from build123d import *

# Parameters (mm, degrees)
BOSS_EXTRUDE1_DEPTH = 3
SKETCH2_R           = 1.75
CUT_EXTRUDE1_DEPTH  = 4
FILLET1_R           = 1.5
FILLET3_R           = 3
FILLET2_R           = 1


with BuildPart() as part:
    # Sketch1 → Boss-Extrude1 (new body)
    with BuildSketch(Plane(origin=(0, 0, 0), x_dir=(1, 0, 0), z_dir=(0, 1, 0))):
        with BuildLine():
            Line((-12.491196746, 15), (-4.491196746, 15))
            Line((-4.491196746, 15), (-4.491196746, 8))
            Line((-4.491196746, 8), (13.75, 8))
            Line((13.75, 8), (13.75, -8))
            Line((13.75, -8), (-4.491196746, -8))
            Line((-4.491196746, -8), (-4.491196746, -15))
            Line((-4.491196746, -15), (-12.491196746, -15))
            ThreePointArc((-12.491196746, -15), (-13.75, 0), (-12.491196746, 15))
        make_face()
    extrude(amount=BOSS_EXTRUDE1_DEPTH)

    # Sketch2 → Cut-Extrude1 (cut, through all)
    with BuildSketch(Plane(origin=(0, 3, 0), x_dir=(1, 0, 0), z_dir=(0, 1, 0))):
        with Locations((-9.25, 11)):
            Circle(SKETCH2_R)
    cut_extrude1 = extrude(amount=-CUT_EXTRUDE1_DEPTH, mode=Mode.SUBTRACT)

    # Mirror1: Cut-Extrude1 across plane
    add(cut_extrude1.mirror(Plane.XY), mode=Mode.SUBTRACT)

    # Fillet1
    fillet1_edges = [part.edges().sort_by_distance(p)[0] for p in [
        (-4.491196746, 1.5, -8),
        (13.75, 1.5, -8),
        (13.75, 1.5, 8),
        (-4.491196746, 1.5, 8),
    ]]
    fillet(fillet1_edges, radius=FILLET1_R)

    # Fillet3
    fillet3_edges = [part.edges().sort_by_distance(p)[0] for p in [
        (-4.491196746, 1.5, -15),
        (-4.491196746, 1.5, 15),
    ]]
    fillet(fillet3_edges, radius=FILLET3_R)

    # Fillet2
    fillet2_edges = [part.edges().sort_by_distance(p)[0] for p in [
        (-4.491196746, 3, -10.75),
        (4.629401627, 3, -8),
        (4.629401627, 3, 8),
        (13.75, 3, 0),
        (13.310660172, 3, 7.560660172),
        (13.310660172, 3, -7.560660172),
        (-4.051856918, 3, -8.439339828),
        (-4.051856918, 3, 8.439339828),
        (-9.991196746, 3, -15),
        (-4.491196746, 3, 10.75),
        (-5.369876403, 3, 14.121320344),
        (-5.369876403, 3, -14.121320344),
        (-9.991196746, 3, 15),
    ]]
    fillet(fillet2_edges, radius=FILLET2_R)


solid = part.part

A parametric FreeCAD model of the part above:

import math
import FreeCAD as App
import Part
import Sketcher


def edges_at(feature, points):
    """Names of the edges that pass closest to the given points."""
    edges = feature.Shape.Edges
    near = lambda p: min(range(len(edges)), key=lambda i: edges[i].distToShape(Part.Vertex(*p))[0])
    return sorted({f"Edge{near(p) + 1}" for p in points})

doc = App.newDocument("Part")
body = doc.addObject("PartDesign::Body", "Body")

# Sketch on XZ plane
sketch1 = body.newObject("Sketcher::SketchObject", "Sketch")
sketch1.AttachmentSupport = (doc.getObject("XZ_Plane"), [""])
sketch1.MapMode = "FlatFace"
sketch1.addGeometry(Part.LineSegment(App.Vector(-4, -15, 0), App.Vector(-12, -15, 0)), False)
sketch1.addGeometry(Part.ArcOfCircle(Part.Circle(App.Vector(76, 0, 0), App.Vector(0, 0, 1), 90), math.radians(170.41), math.radians(189.59)), False)
sketch1.addGeometry(Part.LineSegment(App.Vector(-12, 15, 0), App.Vector(-4, 15, 0)), False)
sketch1.addGeometry(Part.LineSegment(App.Vector(-4, 15, 0), App.Vector(-4, 8, 0)), False)
sketch1.addGeometry(Part.LineSegment(App.Vector(-4, 8, 0), App.Vector(14, 8, 0)), False)
sketch1.addGeometry(Part.LineSegment(App.Vector(14, 8, 0), App.Vector(14, -8, 0)), False)
sketch1.addGeometry(Part.LineSegment(App.Vector(14, -8, 0), App.Vector(-4, -8, 0)), False)
sketch1.addGeometry(Part.LineSegment(App.Vector(-4, -8, 0), App.Vector(-4, -15, 0)), False)
sketch1.addConstraint(Sketcher.Constraint("Coincident", 0, 2, 1, 2))
sketch1.addConstraint(Sketcher.Constraint("Coincident", 1, 1, 2, 1))
sketch1.addConstraint(Sketcher.Constraint("Coincident", 2, 2, 3, 1))
sketch1.addConstraint(Sketcher.Constraint("Coincident", 3, 2, 4, 1))
sketch1.addConstraint(Sketcher.Constraint("Coincident", 4, 2, 5, 1))
sketch1.addConstraint(Sketcher.Constraint("Coincident", 5, 2, 6, 1))
sketch1.addConstraint(Sketcher.Constraint("Coincident", 6, 2, 7, 1))
sketch1.addConstraint(Sketcher.Constraint("Coincident", 7, 2, 0, 1))
sketch1.addConstraint(Sketcher.Constraint("Horizontal", 0))
sketch1.addConstraint(Sketcher.Constraint("Horizontal", 2))
sketch1.addConstraint(Sketcher.Constraint("Vertical", 3))
sketch1.addConstraint(Sketcher.Constraint("Horizontal", 4))
sketch1.addConstraint(Sketcher.Constraint("Vertical", 5))
sketch1.addConstraint(Sketcher.Constraint("Horizontal", 6))
sketch1.addConstraint(Sketcher.Constraint("Vertical", 7))
sketch1.addConstraint(Sketcher.Constraint("Symmetric", 0, 2, 1, 1, -1))
sketch1.addConstraint(Sketcher.Constraint("Symmetric", 3, 2, 6, 2, -1))
sketch1.addConstraint(Sketcher.Constraint("Radius", 1, 90.0))
sketch1.addConstraint(Sketcher.Constraint("DistanceX", 0, 2, 0, 1, 8.0))
sketch1.addConstraint(Sketcher.Constraint("DistanceY", 3, 2, 3, 1, 7.0))
sketch1.addConstraint(Sketcher.Constraint("DistanceY", 5, 2, 5, 1, 16.0))
sketch1.addConstraint(Sketcher.Constraint("DistanceX", 4, 2, 1, 3, 62.5))
sketch1.addConstraint(Sketcher.Constraint("DistanceX", -1, 1, 1, 3, 76.25))
pad1 = body.newObject("PartDesign::Pad", "Pad")
pad1.Profile = sketch1
pad1.Length = 3
pad1.Reversed = True

# Sketch on XZ plane
sketch2 = body.newObject("Sketcher::SketchObject", "Sketch001")
sketch2.AttachmentSupport = (doc.getObject("XZ_Plane"), [""])
sketch2.MapMode = "FlatFace"
sketch2.AttachmentOffset = App.Placement(App.Vector(0, 0, -3), App.Rotation())
sketch2.addGeometry(Part.Circle(App.Vector(-9.2, -11, 0), App.Vector(0, 0, 1), 1.8), False)
sketch2.addConstraint(Sketcher.Constraint("Diameter", 0, 3.5))
sketch2.addConstraint(Sketcher.Constraint("DistanceY", 0, 3, -1, 1, 11.0))
sketch2.addConstraint(Sketcher.Constraint("DistanceX", 0, 3, -1, 1, 9.25))
pocket1 = body.newObject("PartDesign::Pocket", "Pocket")
pocket1.Profile = sketch2
pocket1.Type = "ThroughAll"
pocket1.Reversed = True
doc.recompute()

mirrored = body.newObject("PartDesign::Mirrored", "Mirrored")
mirrored.Originals = [pocket1]
mirrored.MirrorPlane = (doc.getObject("XY_Plane"), [""])
body.Tip = mirrored
doc.recompute()

fillet = body.newObject("PartDesign::Fillet", "Fillet")
fillet.Base = (mirrored, edges_at(mirrored, [
    (-4.491, 1.5, -8),
    (13.75, 1.5, -8),
    (13.75, 1.5, 8),
    (-4.491, 1.5, 8),
]))
fillet.Radius = 1.5
doc.recompute()

fillet2 = body.newObject("PartDesign::Fillet", "Fillet001")
fillet2.Base = (fillet, edges_at(fillet, [(-4.491, 1.5, -15), (-4.491, 1.5, 15)]))
fillet2.Radius = 3
doc.recompute()

fillet3 = body.newObject("PartDesign::Fillet", "Fillet002")
fillet3.Base = (fillet2, edges_at(fillet2, [
    (-4.491, 3, -10.75),
    (4.629, 3, -8),
    (4.629, 3, 8),
    (13.75, 3, 0),
    (13.311, 3, 7.561),
    (13.311, 3, -7.561),
    (-4.052, 3, -8.439),
    (-4.052, 3, 8.439),
    (-9.991, 3, -15),
    (-4.491, 3, 10.75),
    (-5.37, 3, 14.121),
    (-5.37, 3, -14.121),
    (-9.991, 3, 15),
]))
fillet3.Radius = 1

doc.recompute()
